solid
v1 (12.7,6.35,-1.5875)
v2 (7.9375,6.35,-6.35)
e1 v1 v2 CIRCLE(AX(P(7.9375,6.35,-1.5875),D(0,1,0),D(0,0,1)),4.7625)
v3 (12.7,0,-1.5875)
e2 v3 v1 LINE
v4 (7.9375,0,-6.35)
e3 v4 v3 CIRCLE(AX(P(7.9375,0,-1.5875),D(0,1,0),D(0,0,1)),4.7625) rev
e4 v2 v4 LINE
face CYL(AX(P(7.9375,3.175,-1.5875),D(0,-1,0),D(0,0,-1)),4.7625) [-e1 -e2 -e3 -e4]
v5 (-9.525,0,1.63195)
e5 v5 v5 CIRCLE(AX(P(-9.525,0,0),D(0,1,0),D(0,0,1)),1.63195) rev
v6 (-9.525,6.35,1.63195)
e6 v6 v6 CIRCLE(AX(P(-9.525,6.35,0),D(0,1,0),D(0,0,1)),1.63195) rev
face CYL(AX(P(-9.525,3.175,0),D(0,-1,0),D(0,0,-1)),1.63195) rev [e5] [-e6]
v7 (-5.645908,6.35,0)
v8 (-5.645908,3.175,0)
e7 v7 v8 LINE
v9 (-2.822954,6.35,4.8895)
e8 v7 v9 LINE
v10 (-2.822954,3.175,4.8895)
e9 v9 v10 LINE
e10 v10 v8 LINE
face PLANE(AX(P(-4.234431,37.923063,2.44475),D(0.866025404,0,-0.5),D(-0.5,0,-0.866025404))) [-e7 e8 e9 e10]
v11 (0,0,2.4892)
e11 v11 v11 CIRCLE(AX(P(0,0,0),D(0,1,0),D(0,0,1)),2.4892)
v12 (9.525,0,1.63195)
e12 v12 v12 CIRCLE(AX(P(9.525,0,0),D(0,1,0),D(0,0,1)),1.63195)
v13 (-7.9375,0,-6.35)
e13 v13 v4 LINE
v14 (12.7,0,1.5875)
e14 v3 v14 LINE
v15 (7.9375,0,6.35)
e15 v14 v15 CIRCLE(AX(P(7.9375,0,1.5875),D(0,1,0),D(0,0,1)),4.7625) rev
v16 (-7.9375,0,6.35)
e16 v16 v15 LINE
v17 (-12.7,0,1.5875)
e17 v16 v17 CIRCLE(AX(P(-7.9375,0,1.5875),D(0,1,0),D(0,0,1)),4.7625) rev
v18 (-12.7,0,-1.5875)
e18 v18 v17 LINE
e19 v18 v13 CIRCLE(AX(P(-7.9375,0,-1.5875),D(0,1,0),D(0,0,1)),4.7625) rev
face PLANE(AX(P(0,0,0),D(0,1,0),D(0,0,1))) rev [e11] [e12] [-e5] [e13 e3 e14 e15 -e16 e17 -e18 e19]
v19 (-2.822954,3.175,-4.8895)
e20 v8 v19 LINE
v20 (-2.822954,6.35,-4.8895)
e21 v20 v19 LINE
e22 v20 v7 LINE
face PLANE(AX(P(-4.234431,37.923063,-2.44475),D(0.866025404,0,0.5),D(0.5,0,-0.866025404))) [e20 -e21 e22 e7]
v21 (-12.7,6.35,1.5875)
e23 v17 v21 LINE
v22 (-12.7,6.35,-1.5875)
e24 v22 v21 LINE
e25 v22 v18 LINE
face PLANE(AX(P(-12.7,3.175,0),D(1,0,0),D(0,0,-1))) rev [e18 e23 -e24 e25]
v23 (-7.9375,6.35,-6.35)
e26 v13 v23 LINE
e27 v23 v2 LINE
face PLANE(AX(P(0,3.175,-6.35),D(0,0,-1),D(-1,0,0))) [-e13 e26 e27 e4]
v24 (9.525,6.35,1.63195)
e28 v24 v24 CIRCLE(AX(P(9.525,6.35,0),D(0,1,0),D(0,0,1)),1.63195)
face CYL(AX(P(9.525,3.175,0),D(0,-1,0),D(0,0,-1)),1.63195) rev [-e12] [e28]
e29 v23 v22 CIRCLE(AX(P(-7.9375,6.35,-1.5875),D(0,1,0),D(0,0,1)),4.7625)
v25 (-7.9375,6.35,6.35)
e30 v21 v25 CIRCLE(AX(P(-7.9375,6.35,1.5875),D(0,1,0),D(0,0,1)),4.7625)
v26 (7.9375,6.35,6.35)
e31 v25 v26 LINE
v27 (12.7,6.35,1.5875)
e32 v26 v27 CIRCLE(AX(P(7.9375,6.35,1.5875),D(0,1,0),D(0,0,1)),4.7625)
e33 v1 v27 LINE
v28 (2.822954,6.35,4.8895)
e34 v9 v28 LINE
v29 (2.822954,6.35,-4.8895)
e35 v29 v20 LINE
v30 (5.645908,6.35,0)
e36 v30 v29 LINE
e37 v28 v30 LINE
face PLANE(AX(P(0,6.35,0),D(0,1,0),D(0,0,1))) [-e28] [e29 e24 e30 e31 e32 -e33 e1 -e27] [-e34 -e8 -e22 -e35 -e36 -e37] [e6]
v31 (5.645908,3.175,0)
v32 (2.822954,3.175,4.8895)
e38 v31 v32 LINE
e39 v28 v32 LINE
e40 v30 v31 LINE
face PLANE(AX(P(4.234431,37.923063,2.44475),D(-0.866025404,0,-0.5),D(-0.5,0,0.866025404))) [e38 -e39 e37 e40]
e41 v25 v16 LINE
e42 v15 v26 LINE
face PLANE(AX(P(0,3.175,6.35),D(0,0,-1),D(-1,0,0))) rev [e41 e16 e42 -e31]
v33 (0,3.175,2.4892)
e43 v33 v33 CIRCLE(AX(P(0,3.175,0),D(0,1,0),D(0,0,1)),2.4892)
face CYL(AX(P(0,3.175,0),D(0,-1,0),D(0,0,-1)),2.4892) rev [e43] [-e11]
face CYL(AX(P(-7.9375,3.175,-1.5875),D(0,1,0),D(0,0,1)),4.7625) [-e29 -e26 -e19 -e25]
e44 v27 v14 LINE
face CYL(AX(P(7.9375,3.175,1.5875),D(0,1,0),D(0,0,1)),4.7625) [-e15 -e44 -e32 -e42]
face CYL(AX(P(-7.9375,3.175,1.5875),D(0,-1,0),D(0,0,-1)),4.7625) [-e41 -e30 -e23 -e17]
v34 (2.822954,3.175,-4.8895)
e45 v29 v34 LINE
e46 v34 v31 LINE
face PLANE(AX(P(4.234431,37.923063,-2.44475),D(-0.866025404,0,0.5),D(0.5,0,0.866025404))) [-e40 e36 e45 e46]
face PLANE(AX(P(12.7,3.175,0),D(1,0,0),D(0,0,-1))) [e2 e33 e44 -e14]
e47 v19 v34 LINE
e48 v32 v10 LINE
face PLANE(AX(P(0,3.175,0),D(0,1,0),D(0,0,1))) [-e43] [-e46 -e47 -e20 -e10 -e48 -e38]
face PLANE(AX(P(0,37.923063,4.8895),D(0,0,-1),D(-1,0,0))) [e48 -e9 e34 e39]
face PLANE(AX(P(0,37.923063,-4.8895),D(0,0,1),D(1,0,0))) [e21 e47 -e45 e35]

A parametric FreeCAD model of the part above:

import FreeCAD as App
import Part
import Sketcher
Q = App.Units.Quantity


def edges_at(feature, points):
    """Names of the edges that pass closest to the given points."""
    edges = feature.Shape.Edges
    near = lambda p: min(range(len(edges)), key=lambda i: edges[i].distToShape(Part.Vertex(*p))[0])
    return sorted({f"Edge{near(p) + 1}" for p in points})

doc = App.newDocument("Part")
body = doc.addObject("PartDesign::Body", "Body")

sketch1 = body.newObject("Sketcher::SketchObject", "Sketch")
sketch1.AttachmentSupport = (doc.getObject("XZ_Plane"), [""])
sketch1.MapMode = "FlatFace"
sketch1.addGeometry([
    Part.LineSegment(App.Vector(-12.7, -6.3, 0), App.Vector(-12.7, 6.3, 0)),
    Part.LineSegment(App.Vector(-12.7, 6.3, 0), App.Vector(12.7, 6.3, 0)),
    Part.LineSegment(App.Vector(12.7, 6.3, 0), App.Vector(12.7, -6.3, 0)),
    Part.LineSegment(App.Vector(12.7, -6.3, 0), App.Vector(-12.7, -6.3, 0)),
    Part.Circle(App.Vector(-9.5, 0, 0), App.Vector(0, 0, 1), 1.6),
    Part.Circle(App.Vector(9.5, 0, 0), App.Vector(0, 0, 1), 1.6),
    Part.Circle(App.Vector(0, 0, 0), App.Vector(0, 0, 1), 2.5),
], False)
sketch1.addConstraint([
    Sketcher.Constraint("Coincident", 0, 2, 1, 1),
    Sketcher.Constraint("Coincident", 1, 2, 2, 1),
    Sketcher.Constraint("Coincident", 2, 2, 3, 1),
    Sketcher.Constraint("Coincident", 3, 2, 0, 1),
    Sketcher.Constraint("Vertical", 0),
    Sketcher.Constraint("Horizontal", 1),
    Sketcher.Constraint("Vertical", 2),
    Sketcher.Constraint("Horizontal", 3),
    Sketcher.Constraint("Coincident", 6, 3, -1, 1),
    Sketcher.Constraint("Equal", 4, 5),
    Sketcher.Constraint("Symmetric", 4, 3, 5, 3, -1, 1),
    Sketcher.Constraint("Symmetric", 0, 2, 2, 2, -1, 1),
    Sketcher.Constraint("PointOnObject", 4, 3, -1),
    Sketcher.Constraint("DistanceX", 1, 1, 1, 2, Q("1 in")),
    Sketcher.Constraint("Diameter", 6, Q("0.196 in")),
    Sketcher.Constraint("DistanceY", 0, 1, 0, 2, Q("0.5 in")),
    Sketcher.Constraint("Diameter", 4, Q("0.1285 in")),
    Sketcher.Constraint("DistanceX", 4, 3, 5, 3, Q("0.75 in")),
])
pad1 = body.newObject("PartDesign::Pad", "Pad")
pad1.Profile = sketch1
pad1.Length = Q("0.125 in")
pad1.Reversed = True

sketch2 = body.newObject("Sketcher::SketchObject", "Sketch001")
sketch2.AttachmentSupport = (doc.getObject("XZ_Plane"), [""])
sketch2.MapMode = "FlatFace"
sketch2.addGeometry([
    Part.LineSegment(App.Vector(-12.7, -6.3, 0), App.Vector(-12.7, 6.3, 0)),
    Part.LineSegment(App.Vector(-12.7, 6.3, 0), App.Vector(12.7, 6.3, 0)),
    Part.LineSegment(App.Vector(12.7, 6.3, 0), App.Vector(12.7, -6.3, 0)),
    Part.LineSegment(App.Vector(12.7, -6.3, 0), App.Vector(-12.7, -6.3, 0)),
    Part.Circle(App.Vector(-9.5, 0, 0), App.Vector(0, 0, 1), 1.6),
    Part.LineSegment(App.Vector(5.6, 0, 0), App.Vector(2.8, 4.9, 0)),
    Part.LineSegment(App.Vector(2.8, 4.9, 0), App.Vector(-2.8, 4.9, 0)),
    Part.LineSegment(App.Vector(-2.8, 4.9, 0), App.Vector(-5.6, 0, 0)),
    Part.LineSegment(App.Vector(-5.6, 0, 0), App.Vector(-2.8, -4.9, 0)),
    Part.LineSegment(App.Vector(-2.8, -4.9, 0), App.Vector(2.8, -4.9, 0)),
    Part.LineSegment(App.Vector(2.8, -4.9, 0), App.Vector(5.6, 0, 0)),
    Part.Circle(App.Vector(9.5, 0, 0), App.Vector(0, 0, 1), 1.6),
], False)
sketch2.addConstraint([
    Sketcher.Constraint("Coincident", 0, 2, 1, 1),
    Sketcher.Constraint("Coincident", 1, 2, 2, 1),
    Sketcher.Constraint("Coincident", 2, 2, 3, 1),
    Sketcher.Constraint("Coincident", 3, 2, 0, 1),
    Sketcher.Constraint("Coincident", 5, 2, 6, 1),
    Sketcher.Constraint("Coincident", 6, 2, 7, 1),
    Sketcher.Constraint("Coincident", 7, 2, 8, 1),
    Sketcher.Constraint("Coincident", 8, 2, 9, 1),
    Sketcher.Constraint("Coincident", 9, 2, 10, 1),
    Sketcher.Constraint("Coincident", 10, 2, 5, 1),
    Sketcher.Constraint("Vertical", 0),
    Sketcher.Constraint("Horizontal", 1),
    Sketcher.Constraint("Vertical", 2),
    Sketcher.Constraint("Horizontal", 3),
    Sketcher.Constraint("Horizontal", 6),
    Sketcher.Constraint("Horizontal", 9),
    Sketcher.Constraint("Equal", 4, 11),
    Sketcher.Constraint("Symmetric", 4, 3, 11, 3, -1, 1),
    Sketcher.Constraint("Symmetric", 0, 2, 2, 2, -1, 1),
    Sketcher.Constraint("Symmetric", 5, 2, 8, 2, -1, 1),
    Sketcher.Constraint("Symmetric", 7, 2, 10, 2, -1, 1),
    Sketcher.Constraint("PointOnObject", 4, 3, -1),
    Sketcher.Constraint("PointOnObject", 7, 2, -1),
    Sketcher.Constraint("Parallel", 7, 10),
    Sketcher.Constraint("Vertical", 6, 2, 8, 2),
    Sketcher.Constraint("DistanceX", 1, 1, 1, 2, Q("1 in")),
    Sketcher.Constraint("DistanceY", 0, 1, 0, 2, Q("0.5 in")),
    Sketcher.Constraint("Angle", 5, Q("120 deg")),
    Sketcher.Constraint("Diameter", 4, Q("0.1285 in")),
    Sketcher.Constraint("DistanceX", 4, 3, 11, 3, Q("0.75 in")),
    Sketcher.Constraint("DistanceY", 8, 2, 6, 2, Q("0.385 in")),
    Sketcher.Constraint("DistanceX", 6, 2, 6, 1, 5.645908),
])
pad2 = body.newObject("PartDesign::Pad", "Pad001")
pad2.Profile = sketch2
pad2.Length = Q("0.25 in")
pad2.Reversed = True
doc.recompute()

fillet = body.newObject("PartDesign::Fillet", "Fillet")
fillet.Base = (pad2, edges_at(pad2, [
    (12.7, 3.175, 6.35),
    (-12.7, 3.175, 6.35),
    (-12.7, 3.175, -6.35),
    (12.7, 3.175, -6.35),
]))
fillet.Radius = Q("0.1875 in")

doc.recompute()
